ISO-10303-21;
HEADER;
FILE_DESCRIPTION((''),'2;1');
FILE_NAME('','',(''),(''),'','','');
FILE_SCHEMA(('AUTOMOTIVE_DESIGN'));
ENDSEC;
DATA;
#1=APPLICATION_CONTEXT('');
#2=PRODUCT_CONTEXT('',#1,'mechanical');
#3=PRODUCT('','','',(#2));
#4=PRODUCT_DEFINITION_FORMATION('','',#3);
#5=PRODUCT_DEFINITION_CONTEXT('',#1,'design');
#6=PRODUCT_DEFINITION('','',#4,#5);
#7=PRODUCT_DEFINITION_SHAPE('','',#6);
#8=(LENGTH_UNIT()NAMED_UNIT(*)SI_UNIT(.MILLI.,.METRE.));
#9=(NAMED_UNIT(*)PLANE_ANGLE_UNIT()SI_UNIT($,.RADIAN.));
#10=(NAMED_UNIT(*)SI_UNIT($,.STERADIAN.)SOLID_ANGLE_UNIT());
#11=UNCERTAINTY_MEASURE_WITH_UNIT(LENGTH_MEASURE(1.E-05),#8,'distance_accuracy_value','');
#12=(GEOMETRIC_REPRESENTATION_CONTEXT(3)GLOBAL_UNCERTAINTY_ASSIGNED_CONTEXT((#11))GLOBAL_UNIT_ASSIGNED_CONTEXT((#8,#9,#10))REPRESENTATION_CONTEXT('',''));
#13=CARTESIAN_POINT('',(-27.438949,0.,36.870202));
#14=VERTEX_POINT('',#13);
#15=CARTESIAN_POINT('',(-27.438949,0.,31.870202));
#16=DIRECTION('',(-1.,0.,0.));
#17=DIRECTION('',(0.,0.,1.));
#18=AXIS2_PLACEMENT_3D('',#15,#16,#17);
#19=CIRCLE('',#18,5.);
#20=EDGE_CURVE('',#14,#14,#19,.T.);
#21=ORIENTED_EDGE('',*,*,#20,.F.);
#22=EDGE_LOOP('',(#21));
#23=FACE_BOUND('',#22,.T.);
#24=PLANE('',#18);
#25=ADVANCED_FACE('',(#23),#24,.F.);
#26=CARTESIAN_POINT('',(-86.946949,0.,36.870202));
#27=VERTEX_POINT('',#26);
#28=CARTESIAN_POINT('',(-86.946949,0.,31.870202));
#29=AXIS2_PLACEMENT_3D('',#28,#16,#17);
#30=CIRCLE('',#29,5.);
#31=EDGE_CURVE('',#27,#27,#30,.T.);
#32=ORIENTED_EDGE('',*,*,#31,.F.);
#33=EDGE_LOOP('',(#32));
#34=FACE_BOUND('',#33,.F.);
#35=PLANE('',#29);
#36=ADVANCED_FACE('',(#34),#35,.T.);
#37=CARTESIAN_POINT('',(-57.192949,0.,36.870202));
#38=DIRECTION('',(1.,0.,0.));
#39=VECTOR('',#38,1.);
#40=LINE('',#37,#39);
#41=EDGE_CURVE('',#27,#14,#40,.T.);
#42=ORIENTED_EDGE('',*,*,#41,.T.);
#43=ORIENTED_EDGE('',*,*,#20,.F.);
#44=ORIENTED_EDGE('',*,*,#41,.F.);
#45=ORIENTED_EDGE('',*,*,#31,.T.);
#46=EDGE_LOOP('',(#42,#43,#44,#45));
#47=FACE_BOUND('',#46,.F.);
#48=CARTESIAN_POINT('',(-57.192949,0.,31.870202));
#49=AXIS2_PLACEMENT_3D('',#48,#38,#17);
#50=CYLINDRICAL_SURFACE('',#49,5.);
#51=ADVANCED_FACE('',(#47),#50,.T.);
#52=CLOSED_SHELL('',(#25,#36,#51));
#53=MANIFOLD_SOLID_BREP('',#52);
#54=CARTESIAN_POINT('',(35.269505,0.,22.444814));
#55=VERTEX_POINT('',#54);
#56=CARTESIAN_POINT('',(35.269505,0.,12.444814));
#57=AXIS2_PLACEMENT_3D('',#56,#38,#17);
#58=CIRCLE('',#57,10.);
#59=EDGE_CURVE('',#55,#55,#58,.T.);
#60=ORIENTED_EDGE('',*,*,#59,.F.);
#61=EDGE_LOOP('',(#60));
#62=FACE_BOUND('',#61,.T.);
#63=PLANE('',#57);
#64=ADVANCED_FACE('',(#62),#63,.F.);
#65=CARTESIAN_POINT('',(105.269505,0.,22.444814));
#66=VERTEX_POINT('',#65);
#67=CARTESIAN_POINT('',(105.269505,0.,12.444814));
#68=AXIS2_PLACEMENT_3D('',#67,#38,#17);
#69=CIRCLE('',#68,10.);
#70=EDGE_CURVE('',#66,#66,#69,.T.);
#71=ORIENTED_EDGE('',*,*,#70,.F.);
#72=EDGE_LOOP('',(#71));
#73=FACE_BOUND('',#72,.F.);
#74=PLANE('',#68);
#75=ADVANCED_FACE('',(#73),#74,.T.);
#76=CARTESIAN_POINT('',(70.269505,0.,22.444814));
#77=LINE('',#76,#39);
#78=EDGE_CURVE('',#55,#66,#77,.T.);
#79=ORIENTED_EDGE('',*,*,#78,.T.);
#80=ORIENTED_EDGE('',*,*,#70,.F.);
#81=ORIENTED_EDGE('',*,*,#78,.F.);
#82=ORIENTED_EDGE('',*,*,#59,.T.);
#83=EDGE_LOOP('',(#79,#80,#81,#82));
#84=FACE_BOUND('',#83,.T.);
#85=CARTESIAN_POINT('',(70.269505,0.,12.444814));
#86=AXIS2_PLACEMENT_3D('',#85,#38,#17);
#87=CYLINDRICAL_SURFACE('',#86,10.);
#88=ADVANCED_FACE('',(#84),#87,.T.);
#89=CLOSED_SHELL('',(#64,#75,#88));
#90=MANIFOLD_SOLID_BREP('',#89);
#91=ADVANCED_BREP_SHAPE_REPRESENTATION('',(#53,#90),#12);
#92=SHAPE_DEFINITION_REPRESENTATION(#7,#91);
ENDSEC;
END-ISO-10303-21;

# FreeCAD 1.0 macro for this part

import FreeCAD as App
import Part
import Sketcher
Q = App.Units.Quantity


def add_polygon(sketch, points):
    """Adds a closed chain of lines whose ends are joined by coincident constraints."""
    first, n = sketch.GeometryCount, len(points)
    for a, b in zip(points, points[1:] + points[:1]):
        sketch.addGeometry(Part.LineSegment(App.Vector(*a, 0), App.Vector(*b, 0)), False)
    for i in range(n):
        sketch.addConstraint(Sketcher.Constraint("Coincident", first + i, 2, first + (i + 1) % n, 1))

doc = App.newDocument("Part")
body = doc.addObject("PartDesign::Body", "Body")

# Sketch on XZ plane
sketch1 = body.newObject("Sketcher::SketchObject", "Sketch")
sketch1.AttachmentSupport = (doc.getObject("XZ_Plane"), [""])
sketch1.MapMode = "FlatFace"
add_polygon(sketch1, [(-87, 37), (-87, 32), (-27, 32), (-27, 37)])  # lines 0-3
sketch1.addGeometry(Part.LineSegment(App.Vector(-27, 32, 0), App.Vector(-87, 32, 0)), True)  # axis
sketch1.addConstraint([
    Sketcher.Constraint("Vertical", 0),
    Sketcher.Constraint("Horizontal", 1),
    Sketcher.Constraint("Vertical", 2),
    Sketcher.Constraint("Horizontal", 3),
    Sketcher.Constraint("Horizontal", 4),
    Sketcher.Constraint("Coincident", 4, 1, 1, 2),
    Sketcher.Constraint("Vertical", 3, 2, 4, 2),
    Sketcher.Constraint("DistanceY", 0, 2, 0, 1, Q("5 mm")),
    Sketcher.Constraint("DistanceX", 1, 1, 1, 2, Q("59.508 mm")),
    Sketcher.Constraint("DistanceY", -1, 1, 0, 2, Q("31.870202 mm")),
    Sketcher.Constraint("DistanceX", 0, 2, -1, 1, Q("86.946949 mm")),
])
revolution = body.newObject("PartDesign::Revolution", "Revolution")
revolution.Profile = sketch1
revolution.ReferenceAxis = (sketch1, ["Axis0"])
revolution.Angle = 360
body2 = doc.addObject("PartDesign::Body", "Body001")

# Sketch on XZ plane
sketch2 = body2.newObject("Sketcher::SketchObject", "Sketch001")
sketch2.AttachmentSupport = (doc.getObject("XZ_Plane001"), [""])
sketch2.MapMode = "FlatFace"
add_polygon(sketch2, [(35, 22), (35, 12), (105, 12), (105, 22)])  # lines 0-3
sketch2.addGeometry(Part.LineSegment(App.Vector(35, 12, 0), App.Vector(105, 12, 0)), True)  # axis
sketch2.addConstraint([
    Sketcher.Constraint("Vertical", 0),
    Sketcher.Constraint("Horizontal", 1),
    Sketcher.Constraint("Vertical", 2),
    Sketcher.Constraint("Horizontal", 3),
    Sketcher.Constraint("Horizontal", 4),
    Sketcher.Constraint("Coincident", 4, 1, 0, 2),
    Sketcher.Constraint("Vertical", 2, 2, 4, 2),
    Sketcher.Constraint("DistanceX", 1, 1, 1, 2, Q("70 mm")),
    Sketcher.Constraint("DistanceY", 0, 2, 0, 1, Q("10 mm")),
    Sketcher.Constraint("DistanceX", -1, 1, 0, 2, Q("35.269505 mm")),
    Sketcher.Constraint("DistanceY", -1, 1, 0, 2, Q("12.444814 mm")),
])
revolution2 = body2.newObject("PartDesign::Revolution", "Revolution001")
revolution2.Profile = sketch2
revolution2.ReferenceAxis = (sketch2, ["Axis0"])
revolution2.Angle = 360

doc.recompute()
